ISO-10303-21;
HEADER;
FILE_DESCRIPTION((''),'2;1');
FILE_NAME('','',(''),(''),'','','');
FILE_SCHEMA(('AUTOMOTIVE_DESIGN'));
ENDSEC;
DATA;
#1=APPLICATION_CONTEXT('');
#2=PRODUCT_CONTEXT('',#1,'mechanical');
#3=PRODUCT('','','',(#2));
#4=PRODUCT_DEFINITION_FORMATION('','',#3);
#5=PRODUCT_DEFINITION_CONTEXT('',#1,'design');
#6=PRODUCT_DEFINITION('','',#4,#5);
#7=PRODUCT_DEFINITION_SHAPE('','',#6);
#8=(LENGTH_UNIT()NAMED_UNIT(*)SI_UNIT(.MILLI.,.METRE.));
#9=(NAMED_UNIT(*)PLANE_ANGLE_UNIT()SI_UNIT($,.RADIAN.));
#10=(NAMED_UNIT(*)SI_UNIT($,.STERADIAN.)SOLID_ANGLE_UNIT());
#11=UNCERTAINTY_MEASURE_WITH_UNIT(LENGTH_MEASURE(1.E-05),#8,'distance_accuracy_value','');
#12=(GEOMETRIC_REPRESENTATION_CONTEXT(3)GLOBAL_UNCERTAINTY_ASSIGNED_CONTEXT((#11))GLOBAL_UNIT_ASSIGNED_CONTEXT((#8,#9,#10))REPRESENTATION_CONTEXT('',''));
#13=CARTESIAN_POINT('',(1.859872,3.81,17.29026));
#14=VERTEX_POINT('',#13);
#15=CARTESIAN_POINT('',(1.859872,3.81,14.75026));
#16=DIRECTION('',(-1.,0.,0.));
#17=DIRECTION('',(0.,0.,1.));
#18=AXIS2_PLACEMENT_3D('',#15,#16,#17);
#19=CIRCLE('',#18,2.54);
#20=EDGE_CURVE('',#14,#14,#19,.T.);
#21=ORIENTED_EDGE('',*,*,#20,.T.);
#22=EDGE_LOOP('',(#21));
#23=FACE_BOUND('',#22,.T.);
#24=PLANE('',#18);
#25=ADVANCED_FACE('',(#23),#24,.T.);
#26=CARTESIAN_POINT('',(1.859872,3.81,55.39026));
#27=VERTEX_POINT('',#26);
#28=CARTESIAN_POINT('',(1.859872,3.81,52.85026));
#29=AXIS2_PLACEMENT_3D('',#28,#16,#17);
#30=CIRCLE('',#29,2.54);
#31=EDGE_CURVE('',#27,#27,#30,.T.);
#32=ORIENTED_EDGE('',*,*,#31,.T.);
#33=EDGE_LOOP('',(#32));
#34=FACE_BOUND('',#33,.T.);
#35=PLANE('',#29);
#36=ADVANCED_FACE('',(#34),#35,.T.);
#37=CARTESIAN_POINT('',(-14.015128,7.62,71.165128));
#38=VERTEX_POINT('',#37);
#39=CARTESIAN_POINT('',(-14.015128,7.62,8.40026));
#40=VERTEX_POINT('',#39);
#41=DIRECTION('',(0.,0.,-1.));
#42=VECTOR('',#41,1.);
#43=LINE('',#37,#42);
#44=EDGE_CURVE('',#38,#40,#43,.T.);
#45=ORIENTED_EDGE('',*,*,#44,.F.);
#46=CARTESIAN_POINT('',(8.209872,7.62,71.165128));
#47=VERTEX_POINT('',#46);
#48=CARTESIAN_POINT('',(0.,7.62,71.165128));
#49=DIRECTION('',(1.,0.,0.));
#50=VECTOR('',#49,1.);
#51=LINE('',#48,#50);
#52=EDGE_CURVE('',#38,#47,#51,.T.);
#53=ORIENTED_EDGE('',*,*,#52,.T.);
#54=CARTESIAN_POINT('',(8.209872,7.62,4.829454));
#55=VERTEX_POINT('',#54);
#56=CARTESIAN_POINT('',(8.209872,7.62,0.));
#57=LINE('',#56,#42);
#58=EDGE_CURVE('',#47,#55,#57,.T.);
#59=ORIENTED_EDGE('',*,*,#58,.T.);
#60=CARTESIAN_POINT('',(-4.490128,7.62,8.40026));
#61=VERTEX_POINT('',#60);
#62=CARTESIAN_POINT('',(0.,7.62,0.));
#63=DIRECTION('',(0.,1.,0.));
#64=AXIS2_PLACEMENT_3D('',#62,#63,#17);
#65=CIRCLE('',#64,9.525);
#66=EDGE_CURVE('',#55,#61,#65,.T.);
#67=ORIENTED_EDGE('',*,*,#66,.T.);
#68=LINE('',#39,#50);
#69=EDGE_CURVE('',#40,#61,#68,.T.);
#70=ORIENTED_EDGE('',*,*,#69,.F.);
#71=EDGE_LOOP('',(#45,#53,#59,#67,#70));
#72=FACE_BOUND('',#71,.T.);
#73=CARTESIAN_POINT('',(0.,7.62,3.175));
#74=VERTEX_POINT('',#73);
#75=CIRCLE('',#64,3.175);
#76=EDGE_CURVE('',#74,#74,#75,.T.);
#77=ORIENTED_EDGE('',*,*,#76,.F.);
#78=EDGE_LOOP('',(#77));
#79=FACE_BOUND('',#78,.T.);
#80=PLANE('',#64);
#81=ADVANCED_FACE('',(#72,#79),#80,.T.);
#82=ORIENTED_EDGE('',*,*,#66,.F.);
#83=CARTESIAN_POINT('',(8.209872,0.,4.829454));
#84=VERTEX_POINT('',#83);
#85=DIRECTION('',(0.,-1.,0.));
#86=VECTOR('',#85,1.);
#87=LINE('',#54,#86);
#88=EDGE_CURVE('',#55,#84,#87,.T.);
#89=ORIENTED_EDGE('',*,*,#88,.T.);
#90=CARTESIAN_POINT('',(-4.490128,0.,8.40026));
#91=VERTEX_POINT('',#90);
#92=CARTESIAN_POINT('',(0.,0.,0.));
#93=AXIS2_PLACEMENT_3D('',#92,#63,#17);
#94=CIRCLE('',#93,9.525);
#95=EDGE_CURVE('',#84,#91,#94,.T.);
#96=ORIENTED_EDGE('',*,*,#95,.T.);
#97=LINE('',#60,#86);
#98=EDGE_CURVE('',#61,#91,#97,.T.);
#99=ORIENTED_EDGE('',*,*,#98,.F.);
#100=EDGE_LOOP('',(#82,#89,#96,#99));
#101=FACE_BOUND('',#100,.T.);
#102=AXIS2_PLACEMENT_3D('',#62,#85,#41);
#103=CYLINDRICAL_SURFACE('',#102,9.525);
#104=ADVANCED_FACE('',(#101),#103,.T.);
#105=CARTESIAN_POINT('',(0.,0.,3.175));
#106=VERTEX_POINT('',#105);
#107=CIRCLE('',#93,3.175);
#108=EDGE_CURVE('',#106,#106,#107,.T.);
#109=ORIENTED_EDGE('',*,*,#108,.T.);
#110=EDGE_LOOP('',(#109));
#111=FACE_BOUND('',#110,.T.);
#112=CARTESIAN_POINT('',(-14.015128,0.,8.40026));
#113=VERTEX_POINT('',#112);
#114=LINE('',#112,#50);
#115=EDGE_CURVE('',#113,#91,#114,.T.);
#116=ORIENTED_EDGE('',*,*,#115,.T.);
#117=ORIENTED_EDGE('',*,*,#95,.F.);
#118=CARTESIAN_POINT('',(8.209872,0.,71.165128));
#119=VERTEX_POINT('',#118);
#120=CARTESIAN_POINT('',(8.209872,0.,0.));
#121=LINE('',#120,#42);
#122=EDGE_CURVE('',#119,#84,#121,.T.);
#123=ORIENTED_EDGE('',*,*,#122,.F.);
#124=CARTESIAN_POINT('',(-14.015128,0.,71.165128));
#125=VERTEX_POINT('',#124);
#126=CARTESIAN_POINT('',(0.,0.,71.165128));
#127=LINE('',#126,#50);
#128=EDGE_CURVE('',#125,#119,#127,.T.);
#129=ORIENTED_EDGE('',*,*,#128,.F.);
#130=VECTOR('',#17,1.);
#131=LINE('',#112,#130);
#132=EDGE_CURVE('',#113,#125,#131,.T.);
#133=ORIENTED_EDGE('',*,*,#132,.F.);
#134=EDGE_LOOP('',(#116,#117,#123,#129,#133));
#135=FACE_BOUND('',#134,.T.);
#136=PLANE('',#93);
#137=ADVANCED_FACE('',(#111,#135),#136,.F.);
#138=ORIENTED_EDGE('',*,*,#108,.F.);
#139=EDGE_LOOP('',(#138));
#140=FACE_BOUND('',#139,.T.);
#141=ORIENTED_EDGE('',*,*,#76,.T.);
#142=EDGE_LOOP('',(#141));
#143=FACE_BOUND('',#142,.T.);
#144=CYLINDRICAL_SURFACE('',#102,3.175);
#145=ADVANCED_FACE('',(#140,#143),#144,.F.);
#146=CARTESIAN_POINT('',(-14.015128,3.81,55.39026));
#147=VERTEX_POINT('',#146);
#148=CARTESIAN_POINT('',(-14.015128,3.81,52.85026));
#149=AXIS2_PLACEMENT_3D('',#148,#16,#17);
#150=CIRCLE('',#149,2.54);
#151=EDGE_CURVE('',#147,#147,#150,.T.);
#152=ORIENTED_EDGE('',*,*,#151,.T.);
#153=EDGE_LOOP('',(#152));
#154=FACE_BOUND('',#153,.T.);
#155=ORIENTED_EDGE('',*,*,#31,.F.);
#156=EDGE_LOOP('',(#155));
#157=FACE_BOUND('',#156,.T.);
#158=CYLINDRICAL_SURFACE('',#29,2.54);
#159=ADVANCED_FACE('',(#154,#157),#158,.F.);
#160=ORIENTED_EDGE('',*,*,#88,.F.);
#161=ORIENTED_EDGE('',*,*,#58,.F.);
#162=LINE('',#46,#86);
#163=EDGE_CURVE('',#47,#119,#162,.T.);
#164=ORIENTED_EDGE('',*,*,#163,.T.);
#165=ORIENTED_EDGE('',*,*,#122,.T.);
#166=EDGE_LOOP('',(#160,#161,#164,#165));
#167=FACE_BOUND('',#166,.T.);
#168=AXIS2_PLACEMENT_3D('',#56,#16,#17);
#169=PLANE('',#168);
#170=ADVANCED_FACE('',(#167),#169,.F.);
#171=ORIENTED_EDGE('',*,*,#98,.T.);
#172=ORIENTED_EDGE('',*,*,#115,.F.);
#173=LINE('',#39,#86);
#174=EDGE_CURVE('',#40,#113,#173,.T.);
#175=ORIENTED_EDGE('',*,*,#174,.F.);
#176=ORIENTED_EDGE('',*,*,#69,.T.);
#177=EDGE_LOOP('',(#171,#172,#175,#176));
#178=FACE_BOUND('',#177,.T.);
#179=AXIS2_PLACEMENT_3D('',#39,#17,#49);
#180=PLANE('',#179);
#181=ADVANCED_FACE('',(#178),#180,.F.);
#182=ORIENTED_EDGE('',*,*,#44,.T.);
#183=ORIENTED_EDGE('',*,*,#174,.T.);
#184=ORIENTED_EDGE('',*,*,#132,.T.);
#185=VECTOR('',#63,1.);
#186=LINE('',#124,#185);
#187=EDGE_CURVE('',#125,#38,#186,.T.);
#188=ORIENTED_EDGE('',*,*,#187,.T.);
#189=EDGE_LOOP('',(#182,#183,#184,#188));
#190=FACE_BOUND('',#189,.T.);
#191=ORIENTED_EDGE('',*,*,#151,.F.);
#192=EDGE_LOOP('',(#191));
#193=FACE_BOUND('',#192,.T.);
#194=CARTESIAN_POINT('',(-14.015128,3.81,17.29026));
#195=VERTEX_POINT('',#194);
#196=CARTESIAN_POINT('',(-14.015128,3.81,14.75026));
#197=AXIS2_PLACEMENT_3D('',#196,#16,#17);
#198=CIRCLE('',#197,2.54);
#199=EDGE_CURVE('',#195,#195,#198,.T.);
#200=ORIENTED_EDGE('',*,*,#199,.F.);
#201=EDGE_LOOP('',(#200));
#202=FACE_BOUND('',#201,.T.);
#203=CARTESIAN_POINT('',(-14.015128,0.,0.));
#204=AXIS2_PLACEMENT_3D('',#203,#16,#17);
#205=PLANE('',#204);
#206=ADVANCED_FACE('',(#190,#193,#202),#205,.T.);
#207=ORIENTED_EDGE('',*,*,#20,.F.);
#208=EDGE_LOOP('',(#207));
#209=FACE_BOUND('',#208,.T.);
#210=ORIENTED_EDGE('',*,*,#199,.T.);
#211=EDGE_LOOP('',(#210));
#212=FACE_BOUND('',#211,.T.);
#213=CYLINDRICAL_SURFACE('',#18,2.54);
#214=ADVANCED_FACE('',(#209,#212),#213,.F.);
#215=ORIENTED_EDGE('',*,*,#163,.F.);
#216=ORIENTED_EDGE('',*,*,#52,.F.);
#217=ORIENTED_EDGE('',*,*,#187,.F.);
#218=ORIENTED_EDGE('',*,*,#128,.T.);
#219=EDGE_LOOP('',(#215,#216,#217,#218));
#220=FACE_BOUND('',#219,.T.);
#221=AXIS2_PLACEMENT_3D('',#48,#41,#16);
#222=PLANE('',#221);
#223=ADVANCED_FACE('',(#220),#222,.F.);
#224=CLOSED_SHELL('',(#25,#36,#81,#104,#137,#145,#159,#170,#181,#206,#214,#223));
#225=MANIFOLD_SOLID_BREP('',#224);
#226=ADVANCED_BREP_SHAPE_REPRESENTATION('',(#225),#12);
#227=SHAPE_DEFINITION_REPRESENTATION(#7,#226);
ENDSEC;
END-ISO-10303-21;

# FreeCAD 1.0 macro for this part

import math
import FreeCAD as App
import Part
import Sketcher

V = App.Vector
Q = App.Units.Quantity

doc = App.newDocument("Part")
body = doc.addObject("PartDesign::Body", "Body")

# Sketch on XZ plane
sketch1 = body.newObject("Sketcher::SketchObject", "Sketch")
sketch1.AttachmentSupport = (doc.getObject("XZ_Plane"), [""])
sketch1.MapMode = "FlatFace"
sketch1.addGeometry(Part.LineSegment(V(-4.490128, 8.40026, 0), V(-4.490128, 71.165128, 0)), False)
sketch1.addGeometry(Part.LineSegment(V(-4.490128, 71.165128, 0), V(8.209872, 71.165128, 0)), False)
sketch1.addGeometry(Part.LineSegment(V(8.209872, 71.165128, 0), V(8.209872, 4.829454, 0)), False)
sketch1.addGeometry(Part.ArcOfCircle(Part.Circle(V(0, 0, 0), V(0, 0, 1), 9.525), math.radians(118.125506), math.radians(390.466155)), False)
sketch1.addGeometry(Part.Circle(V(0, 0, 0), V(0, 0, 1), 3.175), False)
sketch1.addConstraint(Sketcher.Constraint("Coincident", 0, 2, 1, 1))
sketch1.addConstraint(Sketcher.Constraint("Coincident", 1, 2, 2, 1))
sketch1.addConstraint(Sketcher.Constraint("Coincident", 2, 2, 3, 2))
sketch1.addConstraint(Sketcher.Constraint("Coincident", 3, 1, 0, 1))
sketch1.addConstraint(Sketcher.Constraint("Vertical", 0))
sketch1.addConstraint(Sketcher.Constraint("Horizontal", 1))
sketch1.addConstraint(Sketcher.Constraint("Vertical", 2))
sketch1.addConstraint(Sketcher.Constraint("Coincident", 3, 3, -1, 1))
sketch1.addConstraint(Sketcher.Constraint("Coincident", 4, 3, -1, 1))
sketch1.addConstraint(Sketcher.Constraint("Diameter", 4, Q("0.25 in")))
sketch1.addConstraint(Sketcher.Constraint("DistanceX", 1, 1, 1, 2, Q("0.5 in")))
sketch1.addConstraint(Sketcher.Constraint("Radius", 3, Q("0.375 in")))
sketch1.addConstraint(Sketcher.Constraint("DistanceY", 0, 1, 0, 2, Q("62.764868 mm")))
sketch1.addConstraint(Sketcher.Constraint("DistanceY", 2, 2, 2, 1, Q("66.335674 mm")))
pad1 = body.newObject("PartDesign::Pad", "Pad")
pad1.Profile = sketch1
pad1.Length = Q("0.3 in")
pad1.Reversed = True

# Sketch on YZ plane
sketch2 = body.newObject("Sketcher::SketchObject", "Sketch001")
sketch2.AttachmentSupport = (doc.getObject("YZ_Plane"), [""])
sketch2.MapMode = "FlatFace"
sketch2.AttachmentOffset = App.Placement(V(0, 0, -4.490128), App.Rotation())
sketch2.addGeometry(Part.Circle(V(3.81, 14.75026, 0), V(0, 0, 1), 2.54), False)
sketch2.addGeometry(Part.Circle(V(3.81, 52.85026, 0), V(0, 0, 1), 2.54), False)
sketch2.addConstraint(Sketcher.Constraint("Equal", 0, 1))
sketch2.addConstraint(Sketcher.Constraint("Vertical", 0, 3, 1, 3))
sketch2.addConstraint(Sketcher.Constraint("Diameter", 0, Q("0.2 in")))
sketch2.addConstraint(Sketcher.Constraint("DistanceY", 0, 3, 1, 3, Q("1.5 in")))
sketch2.addConstraint(Sketcher.Constraint("DistanceX", -1, 1, 0, 3, Q("0.15 in")))
sketch2.addConstraint(Sketcher.Constraint("DistanceY", -1, 1, 0, 3, Q("14.75026 mm")))
pocket1 = body.newObject("PartDesign::Pocket", "Pocket")
pocket1.Profile = sketch2
pocket1.Length = Q("0.25 in")
pocket1.Reversed = True

# Sketch on YZ plane
sketch3 = body.newObject("Sketcher::SketchObject", "Sketch002")
sketch3.AttachmentSupport = (doc.getObject("YZ_Plane"), [""])
sketch3.MapMode = "FlatFace"
sketch3.AttachmentOffset = App.Placement(V(0, 0, -4.490128), App.Rotation())
sketch3.addGeometry(Part.LineSegment(V(7.62, 8.40026, 0), V(0, 8.40026, 0)), False)
sketch3.addGeometry(Part.LineSegment(V(0, 8.40026, 0), V(0, 71.165128, 0)), False)
sketch3.addGeometry(Part.LineSegment(V(0, 71.165128, 0), V(7.62, 71.165128, 0)), False)
sketch3.addGeometry(Part.LineSegment(V(7.62, 71.165128, 0), V(7.62, 8.40026, 0)), False)
sketch3.addGeometry(Part.Circle(V(3.81, 14.75026, 0), V(0, 0, 1), 2.54), False)
sketch3.addGeometry(Part.Circle(V(3.81, 52.85026, 0), V(0, 0, 1), 2.54), False)
sketch3.addConstraint(Sketcher.Constraint("Coincident", 0, 2, 1, 1))
sketch3.addConstraint(Sketcher.Constraint("Coincident", 1, 2, 2, 1))
sketch3.addConstraint(Sketcher.Constraint("Coincident", 2, 2, 3, 1))
sketch3.addConstraint(Sketcher.Constraint("Coincident", 3, 2, 0, 1))
sketch3.addConstraint(Sketcher.Constraint("Horizontal", 0))
sketch3.addConstraint(Sketcher.Constraint("Vertical", 1))
sketch3.addConstraint(Sketcher.Constraint("Horizontal", 2))
sketch3.addConstraint(Sketcher.Constraint("Vertical", 3))
sketch3.addConstraint(Sketcher.Constraint("Equal", 4, 5))
sketch3.addConstraint(Sketcher.Constraint("PointOnObject", 0, 2, -2))
sketch3.addConstraint(Sketcher.Constraint("Vertical", 4, 3, 5, 3))
sketch3.addConstraint(Sketcher.Constraint("Diameter", 4, Q("0.2 in")))
sketch3.addConstraint(Sketcher.Constraint("DistanceX", 0, 2, 0, 1, Q("0.3 in")))
sketch3.addConstraint(Sketcher.Constraint("DistanceY", 4, 3, 5, 3, Q("1.5 in")))
sketch3.addConstraint(Sketcher.Constraint("DistanceX", -1, 1, 4, 3, Q("0.15 in")))
sketch3.addConstraint(Sketcher.Constraint("DistanceY", 0, 2, 4, 3, Q("0.25 in")))
sketch3.addConstraint(Sketcher.Constraint("DistanceY", 1, 1, 1, 2, Q("62.764868 mm")))
sketch3.addConstraint(Sketcher.Constraint("DistanceY", -1, 1, 4, 3, Q("14.75026 mm")))
pad2 = body.newObject("PartDesign::Pad", "Pad001")
pad2.Profile = sketch3
pad2.Length = Q("0.375 in")
pad2.Reversed = True

doc.recompute()
